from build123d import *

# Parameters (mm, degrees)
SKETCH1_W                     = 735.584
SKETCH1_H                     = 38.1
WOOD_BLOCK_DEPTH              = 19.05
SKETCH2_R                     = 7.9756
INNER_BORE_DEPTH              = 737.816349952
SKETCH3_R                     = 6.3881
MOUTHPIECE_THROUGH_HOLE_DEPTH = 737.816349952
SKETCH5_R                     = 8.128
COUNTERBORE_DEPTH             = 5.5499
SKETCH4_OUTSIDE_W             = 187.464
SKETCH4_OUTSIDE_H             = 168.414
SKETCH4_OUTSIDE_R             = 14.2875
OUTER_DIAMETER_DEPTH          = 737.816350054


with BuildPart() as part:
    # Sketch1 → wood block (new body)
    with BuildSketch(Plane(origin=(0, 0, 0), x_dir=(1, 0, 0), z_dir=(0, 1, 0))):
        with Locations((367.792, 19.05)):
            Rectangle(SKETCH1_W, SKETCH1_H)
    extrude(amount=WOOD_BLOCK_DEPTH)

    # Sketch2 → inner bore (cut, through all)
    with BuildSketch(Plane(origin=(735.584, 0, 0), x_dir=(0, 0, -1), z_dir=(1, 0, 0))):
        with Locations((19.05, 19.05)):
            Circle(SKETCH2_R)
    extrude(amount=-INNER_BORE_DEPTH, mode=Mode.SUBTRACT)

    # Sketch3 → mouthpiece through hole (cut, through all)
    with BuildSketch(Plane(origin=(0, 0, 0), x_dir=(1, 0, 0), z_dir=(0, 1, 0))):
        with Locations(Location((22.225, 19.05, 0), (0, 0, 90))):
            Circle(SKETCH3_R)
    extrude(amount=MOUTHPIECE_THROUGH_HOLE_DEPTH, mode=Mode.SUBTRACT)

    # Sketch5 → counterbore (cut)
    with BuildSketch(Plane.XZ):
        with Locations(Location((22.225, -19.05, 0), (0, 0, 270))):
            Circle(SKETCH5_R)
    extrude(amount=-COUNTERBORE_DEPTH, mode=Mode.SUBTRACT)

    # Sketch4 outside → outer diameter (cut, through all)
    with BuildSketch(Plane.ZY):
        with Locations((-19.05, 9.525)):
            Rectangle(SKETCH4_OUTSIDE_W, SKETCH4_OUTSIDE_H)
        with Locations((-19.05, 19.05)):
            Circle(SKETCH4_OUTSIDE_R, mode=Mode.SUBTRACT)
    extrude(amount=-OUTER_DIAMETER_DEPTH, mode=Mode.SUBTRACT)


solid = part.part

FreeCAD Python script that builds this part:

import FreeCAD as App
import Part
import Sketcher
Q = App.Units.Quantity

doc = App.newDocument("Part")
params = doc.addObject("Spreadsheet::Sheet", "Params")
for row, (alias, value) in enumerate([
    ("sketch1_height", "1.5 in"),
    ("sketch1_width", "28.96 in"),
    ("pad1_length", "0.75 in"),
    ("sketch2_diameter", "0.628 in"),
    ("sketch3_diameter", "0.503 in"),
    ("sketch4_diameter", "0.64 in"),
    ("pocket3_length", "0.2185 in"),
    ("sketch5_diameter", "1.125 in"),
], start=1):
    params.set(f"A{row}", alias)
    params.set(f"B{row}", "=" + value)
    params.setAlias(f"B{row}", alias)

body = doc.addObject("PartDesign::Body", "Body")

# Sketch on XZ plane
sketch1 = body.newObject("Sketcher::SketchObject", "Sketch")
sketch1.AttachmentSupport = (doc.getObject("XZ_Plane"), [""])
sketch1.MapMode = "FlatFace"
sketch1.addGeometry(Part.LineSegment(App.Vector(0, -38, 0), App.Vector(0, 0, 0)), False)
sketch1.addGeometry(Part.LineSegment(App.Vector(0, 0, 0), App.Vector(736, 0, 0)), False)
sketch1.addGeometry(Part.LineSegment(App.Vector(736, 0, 0), App.Vector(736, -38, 0)), False)
sketch1.addGeometry(Part.LineSegment(App.Vector(736, -38, 0), App.Vector(0, -38, 0)), False)
sketch1.addConstraint(Sketcher.Constraint("Coincident", 0, 2, 1, 1))
sketch1.addConstraint(Sketcher.Constraint("Coincident", 1, 2, 2, 1))
sketch1.addConstraint(Sketcher.Constraint("Coincident", 2, 2, 3, 1))
sketch1.addConstraint(Sketcher.Constraint("Coincident", 3, 2, 0, 1))
sketch1.addConstraint(Sketcher.Constraint("Vertical", 0))
sketch1.addConstraint(Sketcher.Constraint("Horizontal", 1))
sketch1.addConstraint(Sketcher.Constraint("Vertical", 2))
sketch1.addConstraint(Sketcher.Constraint("Horizontal", 3))
sketch1.addConstraint(Sketcher.Constraint("Coincident", 0, 2, -1, 1))
sketch1.addConstraint(Sketcher.Constraint("DistanceY", 0, 1, 0, 2, Q("1.5 in")))
sketch1.addConstraint(Sketcher.Constraint("DistanceX", 1, 1, 1, 2, Q("28.96 in")))
sketch1.setExpression("Constraints[9]", "Params.sketch1_height")
sketch1.setExpression("Constraints[10]", "Params.sketch1_width")
pad1 = body.newObject("PartDesign::Pad", "Pad")
pad1.Profile = sketch1
pad1.setExpression("Length", "Params.pad1_length")
pad1.Reversed = True

# Sketch on YZ plane
sketch2 = body.newObject("Sketcher::SketchObject", "Sketch001")
sketch2.AttachmentSupport = (doc.getObject("YZ_Plane"), [""])
sketch2.MapMode = "FlatFace"
sketch2.AttachmentOffset = App.Placement(App.Vector(0, 0, 28.96 * 25.4), App.Rotation())
sketch2.addGeometry(Part.Circle(App.Vector(19, -19, 0), App.Vector(0, 0, 1), 8), False)
sketch2.addConstraint(Sketcher.Constraint("Diameter", 0, Q("0.628 in")))
sketch2.addConstraint(Sketcher.Constraint("DistanceX", -1, 1, 0, 3, Q("0.75 in")))
sketch2.addConstraint(Sketcher.Constraint("DistanceY", 0, 3, -1, 1, Q("0.75 in")))
sketch2.setExpression("Constraints[0]", "Params.sketch2_diameter")
pocket1 = body.newObject("PartDesign::Pocket", "Pocket")
pocket1.Profile = sketch2
pocket1.Type = "ThroughAll"

# Sketch on XZ plane
sketch3 = body.newObject("Sketcher::SketchObject", "Sketch002")
sketch3.AttachmentSupport = (doc.getObject("XZ_Plane"), [""])
sketch3.MapMode = "FlatFace"
sketch3.addGeometry(Part.Circle(App.Vector(22, -19, 0), App.Vector(0, 0, 1), 6), False)
sketch3.addConstraint(Sketcher.Constraint("Diameter", 0, Q("0.503 in")))
sketch3.addConstraint(Sketcher.Constraint("DistanceY", 0, 3, -1, 1, Q("0.75 in")))
sketch3.addConstraint(Sketcher.Constraint("DistanceX", -1, 1, 0, 3, Q("0.875 in")))
sketch3.setExpression("Constraints[0]", "Params.sketch3_diameter")
pocket2 = body.newObject("PartDesign::Pocket", "Pocket001")
pocket2.Profile = sketch3
pocket2.Type = "ThroughAll"

# Sketch on XZ plane
sketch4 = body.newObject("Sketcher::SketchObject", "Sketch003")
sketch4.AttachmentSupport = (doc.getObject("XZ_Plane"), [""])
sketch4.MapMode = "FlatFace"
sketch4.addGeometry(Part.Circle(App.Vector(22, -19, 0), App.Vector(0, 0, 1), 8), False)
sketch4.addConstraint(Sketcher.Constraint("Diameter", 0, Q("0.64 in")))
sketch4.addConstraint(Sketcher.Constraint("DistanceY", 0, 3, -1, 1, Q("0.75 in")))
sketch4.addConstraint(Sketcher.Constraint("DistanceX", -1, 1, 0, 3, Q("0.875 in")))
sketch4.setExpression("Constraints[0]", "Params.sketch4_diameter")
pocket3 = body.newObject("PartDesign::Pocket", "Pocket002")
pocket3.Profile = sketch4
pocket3.setExpression("Length", "Params.pocket3_length")

# Sketch on YZ plane
sketch5 = body.newObject("Sketcher::SketchObject", "Sketch004")
sketch5.AttachmentSupport = (doc.getObject("YZ_Plane"), [""])
sketch5.MapMode = "FlatFace"
sketch5.addGeometry(Part.LineSegment(App.Vector(94, -113, 0), App.Vector(-75, -113, 0)), False)
sketch5.addGeometry(Part.LineSegment(App.Vector(-75, -113, 0), App.Vector(-75, 75, 0)), False)
sketch5.addGeometry(Part.LineSegment(App.Vector(-75, 75, 0), App.Vector(94, 75, 0)), False)
sketch5.addGeometry(Part.LineSegment(App.Vector(94, 75, 0), App.Vector(94, -113, 0)), False)
sketch5.addGeometry(Part.Circle(App.Vector(19, -19, 0), App.Vector(0, 0, 1), 14), False)
sketch5.addConstraint(Sketcher.Constraint("Coincident", 0, 2, 1, 1))
sketch5.addConstraint(Sketcher.Constraint("Coincident", 1, 2, 2, 1))
sketch5.addConstraint(Sketcher.Constraint("Coincident", 2, 2, 3, 1))
sketch5.addConstraint(Sketcher.Constraint("Coincident", 3, 2, 0, 1))
sketch5.addConstraint(Sketcher.Constraint("Horizontal", 0))
sketch5.addConstraint(Sketcher.Constraint("Vertical", 1))
sketch5.addConstraint(Sketcher.Constraint("Horizontal", 2))
sketch5.addConstraint(Sketcher.Constraint("Vertical", 3))
sketch5.addConstraint(Sketcher.Constraint("Diameter", 4, Q("1.125 in")))
sketch5.addConstraint(Sketcher.Constraint("DistanceX", -1, 1, 4, 3, Q("0.75 in")))
sketch5.addConstraint(Sketcher.Constraint("DistanceY", 4, 3, -1, 1, Q("0.75 in")))
sketch5.addConstraint(Sketcher.Constraint("DistanceX", 0, 2, 0, 1, Q("168.414 mm")))
sketch5.addConstraint(Sketcher.Constraint("DistanceY", 1, 1, 1, 2, Q("187.464 mm")))
sketch5.addConstraint(Sketcher.Constraint("DistanceX", 0, 2, -1, 1, Q("74.682 mm")))
sketch5.addConstraint(Sketcher.Constraint("DistanceY", 0, 2, -1, 1, Q("112.782 mm")))
sketch5.setExpression("Constraints[8]", "Params.sketch5_diameter")
pocket4 = body.newObject("PartDesign::Pocket", "Pocket003")
pocket4.Profile = sketch5
pocket4.Type = "ThroughAll"
pocket4.Reversed = True

doc.recompute()
